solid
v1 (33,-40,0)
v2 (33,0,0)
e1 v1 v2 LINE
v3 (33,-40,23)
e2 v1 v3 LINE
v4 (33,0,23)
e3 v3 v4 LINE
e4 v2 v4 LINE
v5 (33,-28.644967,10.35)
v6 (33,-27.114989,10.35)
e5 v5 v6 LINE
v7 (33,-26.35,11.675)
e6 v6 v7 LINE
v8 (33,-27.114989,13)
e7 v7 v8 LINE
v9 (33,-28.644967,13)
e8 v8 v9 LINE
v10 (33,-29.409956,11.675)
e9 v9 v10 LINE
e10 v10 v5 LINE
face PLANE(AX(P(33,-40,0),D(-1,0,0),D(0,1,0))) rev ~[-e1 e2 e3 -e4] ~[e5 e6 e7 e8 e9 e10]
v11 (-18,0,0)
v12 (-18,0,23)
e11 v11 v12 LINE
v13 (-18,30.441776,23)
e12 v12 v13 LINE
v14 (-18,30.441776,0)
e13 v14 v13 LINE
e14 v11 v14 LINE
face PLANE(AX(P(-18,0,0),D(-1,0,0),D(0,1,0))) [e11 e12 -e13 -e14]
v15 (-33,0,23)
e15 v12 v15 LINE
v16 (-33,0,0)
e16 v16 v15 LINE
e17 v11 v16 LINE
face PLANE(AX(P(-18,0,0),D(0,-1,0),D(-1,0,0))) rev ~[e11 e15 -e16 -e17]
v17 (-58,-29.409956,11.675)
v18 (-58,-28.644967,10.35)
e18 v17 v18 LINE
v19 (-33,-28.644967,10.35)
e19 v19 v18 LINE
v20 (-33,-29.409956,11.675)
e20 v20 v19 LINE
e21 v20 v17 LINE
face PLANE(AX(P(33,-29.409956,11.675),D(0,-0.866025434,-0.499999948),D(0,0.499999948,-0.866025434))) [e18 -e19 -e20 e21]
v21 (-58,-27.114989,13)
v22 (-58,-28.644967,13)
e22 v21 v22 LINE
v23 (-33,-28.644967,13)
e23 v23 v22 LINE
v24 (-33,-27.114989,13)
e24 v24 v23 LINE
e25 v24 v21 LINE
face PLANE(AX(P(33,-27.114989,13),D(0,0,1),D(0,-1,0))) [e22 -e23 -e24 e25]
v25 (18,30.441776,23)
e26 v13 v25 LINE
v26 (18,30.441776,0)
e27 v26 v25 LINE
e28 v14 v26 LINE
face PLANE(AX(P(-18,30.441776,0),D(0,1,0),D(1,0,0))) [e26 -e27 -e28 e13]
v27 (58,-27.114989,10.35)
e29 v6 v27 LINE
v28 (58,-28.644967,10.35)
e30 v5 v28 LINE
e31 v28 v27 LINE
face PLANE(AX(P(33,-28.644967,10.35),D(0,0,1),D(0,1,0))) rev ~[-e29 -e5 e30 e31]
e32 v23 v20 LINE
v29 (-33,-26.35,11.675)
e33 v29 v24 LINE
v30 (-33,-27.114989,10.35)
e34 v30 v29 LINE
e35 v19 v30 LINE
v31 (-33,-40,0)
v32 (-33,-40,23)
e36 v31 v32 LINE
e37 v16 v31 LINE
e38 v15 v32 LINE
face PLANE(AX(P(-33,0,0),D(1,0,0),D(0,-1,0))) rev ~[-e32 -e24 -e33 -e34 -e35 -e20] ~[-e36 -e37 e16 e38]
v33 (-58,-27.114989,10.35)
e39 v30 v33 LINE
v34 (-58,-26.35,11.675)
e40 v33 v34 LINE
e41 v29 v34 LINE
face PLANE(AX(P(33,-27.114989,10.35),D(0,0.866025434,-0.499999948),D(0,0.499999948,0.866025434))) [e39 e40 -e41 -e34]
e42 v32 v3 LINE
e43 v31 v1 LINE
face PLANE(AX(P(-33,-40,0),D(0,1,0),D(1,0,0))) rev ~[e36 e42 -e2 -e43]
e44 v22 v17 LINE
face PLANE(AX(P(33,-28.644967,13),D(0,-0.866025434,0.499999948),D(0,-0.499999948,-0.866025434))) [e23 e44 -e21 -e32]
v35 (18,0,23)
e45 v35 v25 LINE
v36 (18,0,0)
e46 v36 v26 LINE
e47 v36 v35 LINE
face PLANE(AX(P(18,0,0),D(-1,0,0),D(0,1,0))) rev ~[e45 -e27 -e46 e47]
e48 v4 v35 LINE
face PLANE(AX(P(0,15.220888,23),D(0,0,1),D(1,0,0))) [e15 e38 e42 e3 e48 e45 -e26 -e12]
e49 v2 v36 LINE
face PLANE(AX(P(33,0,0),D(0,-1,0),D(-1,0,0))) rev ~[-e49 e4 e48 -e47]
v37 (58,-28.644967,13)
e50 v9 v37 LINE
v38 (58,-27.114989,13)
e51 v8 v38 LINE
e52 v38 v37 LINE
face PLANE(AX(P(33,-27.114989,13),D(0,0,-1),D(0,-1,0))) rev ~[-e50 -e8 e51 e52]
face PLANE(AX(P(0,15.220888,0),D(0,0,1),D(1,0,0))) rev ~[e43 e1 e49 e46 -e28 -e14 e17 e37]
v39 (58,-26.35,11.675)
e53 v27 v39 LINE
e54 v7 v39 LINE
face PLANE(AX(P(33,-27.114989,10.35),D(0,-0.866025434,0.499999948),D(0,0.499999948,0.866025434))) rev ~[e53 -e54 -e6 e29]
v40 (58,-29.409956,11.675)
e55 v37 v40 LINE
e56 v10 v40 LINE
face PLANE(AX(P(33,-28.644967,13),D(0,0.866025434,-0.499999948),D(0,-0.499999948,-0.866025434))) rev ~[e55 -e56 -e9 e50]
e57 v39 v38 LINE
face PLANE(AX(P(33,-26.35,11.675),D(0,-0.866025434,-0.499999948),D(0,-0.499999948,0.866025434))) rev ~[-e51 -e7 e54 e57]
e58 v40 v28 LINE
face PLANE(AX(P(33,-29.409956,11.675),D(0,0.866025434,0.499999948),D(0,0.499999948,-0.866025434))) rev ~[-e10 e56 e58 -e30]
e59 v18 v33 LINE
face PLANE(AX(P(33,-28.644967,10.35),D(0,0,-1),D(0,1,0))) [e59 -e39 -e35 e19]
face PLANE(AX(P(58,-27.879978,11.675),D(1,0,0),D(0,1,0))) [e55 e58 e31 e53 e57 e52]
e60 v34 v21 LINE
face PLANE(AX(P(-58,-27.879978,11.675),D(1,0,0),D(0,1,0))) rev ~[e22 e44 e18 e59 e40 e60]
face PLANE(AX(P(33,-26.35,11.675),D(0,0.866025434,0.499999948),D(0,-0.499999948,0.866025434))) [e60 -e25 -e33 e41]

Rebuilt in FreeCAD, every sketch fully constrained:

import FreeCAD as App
import Part
import Sketcher

V = App.Vector
Q = App.Units.Quantity


def add_polygon(sketch, points):
    """Adds a closed chain of lines whose ends are joined by coincident constraints."""
    first, n = sketch.GeometryCount, len(points)
    for a, b in zip(points, points[1:] + points[:1]):
        sketch.addGeometry(Part.LineSegment(App.Vector(*a, 0), App.Vector(*b, 0)), False)
    for i in range(n):
        sketch.addConstraint(Sketcher.Constraint("Coincident", first + i, 2, first + (i + 1) % n, 1))

doc = App.newDocument("Part")
params = doc.addObject("Spreadsheet::Sheet", "Params")
for row, (alias, value) in enumerate([
    ("sketch1_width", "15 mm"),
    ("sketch1_width2", "36 mm"),
    ("sketch1_height", "40 mm"),
    ("pad1_length", "23 mm"),
    ("pad2_length", "25 mm"),
    ("pad3_length", "91 mm"),
], start=1):
    params.set(f"A{row}", alias)
    params.set(f"B{row}", "=" + value)
    params.setAlias(f"B{row}", alias)

body = doc.addObject("PartDesign::Body", "Body")

sketch1 = doc.addObject("Sketcher::SketchObject", "Sketch")
body.addObject(sketch1)
sketch1.AttachmentSupport = (doc.XY_Plane, [""])
sketch1.MapMode = "FlatFace"
add_polygon(sketch1, [(33, 0), (18, 0), (18, 30), (-18, 30), (-18, 0), (-33, 0), (-33, -40), (33, -40)])
sketch1.addConstraint(Sketcher.Constraint("Horizontal", 0))
sketch1.addConstraint(Sketcher.Constraint("Vertical", 1))
sketch1.addConstraint(Sketcher.Constraint("Horizontal", 2))
sketch1.addConstraint(Sketcher.Constraint("Vertical", 3))
sketch1.addConstraint(Sketcher.Constraint("Horizontal", 4))
sketch1.addConstraint(Sketcher.Constraint("Vertical", 5))
sketch1.addConstraint(Sketcher.Constraint("Horizontal", 6))
sketch1.addConstraint(Sketcher.Constraint("Vertical", 7))
sketch1.addConstraint(Sketcher.Constraint("Symmetric", 0, 2, 3, 2, -1, 1))
sketch1.addConstraint(Sketcher.Constraint("Symmetric", 4, 2, 7, 2, -2))
sketch1.addConstraint(Sketcher.Constraint("DistanceX", 0, 2, 0, 1, 15.0))
sketch1.addConstraint(Sketcher.Constraint("DistanceX", 2, 2, 2, 1, 36.0))
sketch1.addConstraint(Sketcher.Constraint("DistanceY", 5, 2, 5, 1, 40.0))
sketch1.addConstraint(Sketcher.Constraint("DistanceY", 1, 1, 1, 2, 30.441776))
sketch1.setExpression("Constraints[18]", "Params.sketch1_width")
sketch1.setExpression("Constraints[19]", "Params.sketch1_width2")
sketch1.setExpression("Constraints[20]", "Params.sketch1_height")
pad1 = doc.addObject("PartDesign::Pad", "Pad")
body.addObject(pad1)
pad1.Profile = sketch1
pad1.setExpression("Length", "Params.pad1_length")

sketch2 = doc.addObject("Sketcher::SketchObject", "Sketch001")
body.addObject(sketch2)
sketch2.AttachmentSupport = (doc.YZ_Plane, [""])
sketch2.MapMode = "FlatFace"
sketch2.AttachmentOffset = App.Placement(V(0, 0, 33), App.Rotation())
add_polygon(sketch2, [(-27.1, 13), (-28.6, 13), (-29.4, 11.7), (-28.6, 10.3), (-27.1, 10.3), (-26.4, 11.7)])
sketch2.addConstraint(Sketcher.Constraint("Horizontal", 0))
sketch2.addConstraint(Sketcher.Constraint("Horizontal", 3))
sketch2.addConstraint(Sketcher.Constraint("Parallel", 1, 4))
sketch2.addConstraint(Sketcher.Constraint("Parallel", 2, 5))
sketch2.addConstraint(Sketcher.Constraint("Horizontal", 1, 2, 4, 2))
sketch2.addConstraint(Sketcher.Constraint("Vertical", 0, 2, 2, 2))
sketch2.addConstraint(Sketcher.Constraint("Vertical", 3, 2, 5, 2))
sketch2.addConstraint(Sketcher.Constraint("Angle", 1, Q("-119.999997 deg")))
sketch2.addConstraint(Sketcher.Constraint("DistanceY", -1, 1, 0, 2, 13.0))
sketch2.addConstraint(Sketcher.Constraint("DistanceY", -1, 1, 2, 2, 10.35))
sketch2.addConstraint(Sketcher.Constraint("DistanceX", 4, 2, -1, 1, 26.35))
sketch2.addConstraint(Sketcher.Constraint("DistanceX", 0, 2, 0, 1, 1.529978))
pad2 = doc.addObject("PartDesign::Pad", "Pad001")
body.addObject(pad2)
pad2.Profile = sketch2
pad2.setExpression("Length", "Params.pad2_length")

sketch3 = doc.addObject("Sketcher::SketchObject", "Sketch002")
body.addObject(sketch3)
sketch3.AttachmentSupport = (doc.YZ_Plane, [""])
sketch3.MapMode = "FlatFace"
sketch3.AttachmentOffset = App.Placement(V(0, 0, 33), App.Rotation())
add_polygon(sketch3, [(-27.1, 13), (-28.6, 13), (-29.4, 11.7), (-28.6, 10.3), (-27.1, 10.3), (-26.4, 11.7)])
sketch3.addConstraint(Sketcher.Constraint("Horizontal", 0))
sketch3.addConstraint(Sketcher.Constraint("Horizontal", 3))
sketch3.addConstraint(Sketcher.Constraint("Parallel", 1, 4))
sketch3.addConstraint(Sketcher.Constraint("Parallel", 2, 5))
sketch3.addConstraint(Sketcher.Constraint("Horizontal", 1, 2, 4, 2))
sketch3.addConstraint(Sketcher.Constraint("Vertical", 0, 2, 2, 2))
sketch3.addConstraint(Sketcher.Constraint("Vertical", 3, 2, 5, 2))
sketch3.addConstraint(Sketcher.Constraint("Angle", 1, Q("-119.999997 deg")))
sketch3.addConstraint(Sketcher.Constraint("DistanceY", -1, 1, 0, 2, 13.0))
sketch3.addConstraint(Sketcher.Constraint("DistanceY", -1, 1, 2, 2, 10.35))
sketch3.addConstraint(Sketcher.Constraint("DistanceX", 4, 2, -1, 1, 26.35))
sketch3.addConstraint(Sketcher.Constraint("DistanceX", 0, 2, 0, 1, 1.529978))
pad3 = doc.addObject("PartDesign::Pad", "Pad002")
body.addObject(pad3)
pad3.Profile = sketch3
pad3.setExpression("Length", "Params.pad3_length")
pad3.Reversed = True

doc.recompute()
